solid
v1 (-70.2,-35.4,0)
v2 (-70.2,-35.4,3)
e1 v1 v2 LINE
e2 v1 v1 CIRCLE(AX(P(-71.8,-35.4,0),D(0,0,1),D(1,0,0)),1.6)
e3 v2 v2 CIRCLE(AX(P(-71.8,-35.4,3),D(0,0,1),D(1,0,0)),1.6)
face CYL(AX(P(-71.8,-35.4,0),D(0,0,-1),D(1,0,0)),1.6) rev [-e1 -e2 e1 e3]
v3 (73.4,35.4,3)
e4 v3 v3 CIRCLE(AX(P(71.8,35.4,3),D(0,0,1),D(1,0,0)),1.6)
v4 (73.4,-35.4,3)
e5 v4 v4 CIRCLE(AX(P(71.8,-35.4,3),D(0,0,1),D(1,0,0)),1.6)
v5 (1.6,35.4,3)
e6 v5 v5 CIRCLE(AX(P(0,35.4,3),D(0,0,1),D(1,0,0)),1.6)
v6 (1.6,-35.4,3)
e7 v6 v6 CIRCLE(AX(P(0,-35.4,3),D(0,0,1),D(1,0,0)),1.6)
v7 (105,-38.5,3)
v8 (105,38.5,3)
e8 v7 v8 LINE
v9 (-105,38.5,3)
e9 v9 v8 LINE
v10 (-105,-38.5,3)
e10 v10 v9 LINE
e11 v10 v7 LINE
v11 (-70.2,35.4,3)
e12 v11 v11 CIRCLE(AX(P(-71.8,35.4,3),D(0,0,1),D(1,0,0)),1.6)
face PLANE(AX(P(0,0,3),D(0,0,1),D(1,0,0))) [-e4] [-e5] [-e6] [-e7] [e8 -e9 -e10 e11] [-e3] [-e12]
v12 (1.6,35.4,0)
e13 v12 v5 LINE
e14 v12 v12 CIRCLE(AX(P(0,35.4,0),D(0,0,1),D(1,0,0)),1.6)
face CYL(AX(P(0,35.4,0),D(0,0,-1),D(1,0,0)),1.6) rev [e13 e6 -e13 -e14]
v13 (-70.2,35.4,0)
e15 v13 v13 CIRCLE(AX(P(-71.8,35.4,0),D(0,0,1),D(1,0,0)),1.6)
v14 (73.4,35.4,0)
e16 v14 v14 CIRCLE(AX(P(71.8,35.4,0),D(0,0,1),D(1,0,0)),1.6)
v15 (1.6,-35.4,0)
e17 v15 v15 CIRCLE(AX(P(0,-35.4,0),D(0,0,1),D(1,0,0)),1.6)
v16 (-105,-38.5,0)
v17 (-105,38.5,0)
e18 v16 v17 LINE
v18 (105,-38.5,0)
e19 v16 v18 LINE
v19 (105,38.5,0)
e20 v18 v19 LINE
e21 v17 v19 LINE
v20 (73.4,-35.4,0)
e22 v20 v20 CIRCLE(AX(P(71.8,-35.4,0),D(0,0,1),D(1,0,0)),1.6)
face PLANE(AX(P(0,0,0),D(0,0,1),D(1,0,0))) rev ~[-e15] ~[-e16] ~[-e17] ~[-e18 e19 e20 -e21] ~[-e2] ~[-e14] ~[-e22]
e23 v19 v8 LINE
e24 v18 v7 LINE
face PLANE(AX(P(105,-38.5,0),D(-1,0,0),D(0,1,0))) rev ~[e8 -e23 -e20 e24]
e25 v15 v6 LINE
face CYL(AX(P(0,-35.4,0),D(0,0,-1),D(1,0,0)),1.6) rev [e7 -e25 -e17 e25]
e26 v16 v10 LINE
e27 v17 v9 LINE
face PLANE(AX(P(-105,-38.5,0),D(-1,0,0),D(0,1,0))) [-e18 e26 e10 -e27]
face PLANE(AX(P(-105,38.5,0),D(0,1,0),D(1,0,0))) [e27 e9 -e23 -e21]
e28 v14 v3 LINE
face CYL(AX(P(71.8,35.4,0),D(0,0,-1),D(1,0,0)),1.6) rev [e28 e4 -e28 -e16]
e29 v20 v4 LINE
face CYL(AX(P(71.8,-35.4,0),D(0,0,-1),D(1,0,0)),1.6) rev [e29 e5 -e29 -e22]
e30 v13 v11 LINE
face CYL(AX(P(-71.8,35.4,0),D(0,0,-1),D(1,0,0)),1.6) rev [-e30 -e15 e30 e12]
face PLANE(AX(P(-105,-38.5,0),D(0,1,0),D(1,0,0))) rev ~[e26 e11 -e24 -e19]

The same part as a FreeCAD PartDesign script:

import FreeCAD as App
import Part
import Sketcher
Q = App.Units.Quantity

doc = App.newDocument("Part")
body = doc.addObject("PartDesign::Body", "Body")

# Sketch on XY plane
sketch1 = body.newObject("Sketcher::SketchObject", "Sketch")
sketch1.AttachmentSupport = (doc.getObject("XY_Plane"), [""])
sketch1.MapMode = "FlatFace"
sketch1.addGeometry([
    Part.LineSegment(App.Vector(-105, 38.5, 0), App.Vector(-105, -38.5, 0)),  # 0
    Part.LineSegment(App.Vector(-105, -38.5, 0), App.Vector(105, -38.5, 0)),  # 1
    Part.LineSegment(App.Vector(105, -38.5, 0), App.Vector(105, 38.5, 0)),  # 2
    Part.LineSegment(App.Vector(105, 38.5, 0), App.Vector(-105, 38.5, 0)),  # 3
    Part.Circle(App.Vector(-71.8, -35.4, 0), App.Vector(0, 0, 1), 1.6),  # 4
    Part.Circle(App.Vector(0, -35.4, 0), App.Vector(0, 0, 1), 1.6),  # 5
    Part.Circle(App.Vector(71.8, -35.4, 0), App.Vector(0, 0, 1), 1.6),  # 6
    Part.Circle(App.Vector(-71.8, 35.4, 0), App.Vector(0, 0, 1), 1.6),  # 7
    Part.Circle(App.Vector(0, 35.4, 0), App.Vector(0, 0, 1), 1.6),  # 8
    Part.Circle(App.Vector(71.8, 35.4, 0), App.Vector(0, 0, 1), 1.6),  # 9
], False)
sketch1.addConstraint([
    Sketcher.Constraint("Coincident", 0, 2, 1, 1),
    Sketcher.Constraint("Coincident", 1, 2, 2, 1),
    Sketcher.Constraint("Coincident", 2, 2, 3, 1),
    Sketcher.Constraint("Coincident", 3, 2, 0, 1),
    Sketcher.Constraint("Vertical", 0),
    Sketcher.Constraint("Horizontal", 1),
    Sketcher.Constraint("Vertical", 2),
    Sketcher.Constraint("Horizontal", 3),
    Sketcher.Constraint("Equal", 4, 5),
    Sketcher.Constraint("Equal", 5, 6),
    Sketcher.Constraint("Equal", 6, 7),
    Sketcher.Constraint("Equal", 7, 8),
    Sketcher.Constraint("Equal", 8, 9),
    Sketcher.Constraint("Symmetric", 6, 3, 7, 3, -1, 1),
    Sketcher.Constraint("Symmetric", 5, 3, 8, 3, -1, 1),
    Sketcher.Constraint("Symmetric", 4, 3, 9, 3, -1, 1),
    Sketcher.Constraint("Symmetric", 0, 2, 2, 2, -1, 1),
    Sketcher.Constraint("Symmetric", 4, 3, 6, 3, -2),
    Sketcher.Constraint("PointOnObject", 5, 3, -2),
    Sketcher.Constraint("Horizontal", 4, 3, 5, 3),
    Sketcher.Constraint("Diameter", 4, Q("3.2 mm")),
    Sketcher.Constraint("DistanceX", 1, 1, 1, 2, Q("210 mm")),
    Sketcher.Constraint("DistanceY", 0, 2, 0, 1, Q("77 mm")),
    Sketcher.Constraint("DistanceX", 4, 3, -1, 1, Q("71.8 mm")),
    Sketcher.Constraint("DistanceY", 4, 3, -1, 1, Q("35.4 mm")),
])
pad1 = body.newObject("PartDesign::Pad", "Pad")
pad1.Profile = sketch1
pad1.Length = 3

doc.recompute()
